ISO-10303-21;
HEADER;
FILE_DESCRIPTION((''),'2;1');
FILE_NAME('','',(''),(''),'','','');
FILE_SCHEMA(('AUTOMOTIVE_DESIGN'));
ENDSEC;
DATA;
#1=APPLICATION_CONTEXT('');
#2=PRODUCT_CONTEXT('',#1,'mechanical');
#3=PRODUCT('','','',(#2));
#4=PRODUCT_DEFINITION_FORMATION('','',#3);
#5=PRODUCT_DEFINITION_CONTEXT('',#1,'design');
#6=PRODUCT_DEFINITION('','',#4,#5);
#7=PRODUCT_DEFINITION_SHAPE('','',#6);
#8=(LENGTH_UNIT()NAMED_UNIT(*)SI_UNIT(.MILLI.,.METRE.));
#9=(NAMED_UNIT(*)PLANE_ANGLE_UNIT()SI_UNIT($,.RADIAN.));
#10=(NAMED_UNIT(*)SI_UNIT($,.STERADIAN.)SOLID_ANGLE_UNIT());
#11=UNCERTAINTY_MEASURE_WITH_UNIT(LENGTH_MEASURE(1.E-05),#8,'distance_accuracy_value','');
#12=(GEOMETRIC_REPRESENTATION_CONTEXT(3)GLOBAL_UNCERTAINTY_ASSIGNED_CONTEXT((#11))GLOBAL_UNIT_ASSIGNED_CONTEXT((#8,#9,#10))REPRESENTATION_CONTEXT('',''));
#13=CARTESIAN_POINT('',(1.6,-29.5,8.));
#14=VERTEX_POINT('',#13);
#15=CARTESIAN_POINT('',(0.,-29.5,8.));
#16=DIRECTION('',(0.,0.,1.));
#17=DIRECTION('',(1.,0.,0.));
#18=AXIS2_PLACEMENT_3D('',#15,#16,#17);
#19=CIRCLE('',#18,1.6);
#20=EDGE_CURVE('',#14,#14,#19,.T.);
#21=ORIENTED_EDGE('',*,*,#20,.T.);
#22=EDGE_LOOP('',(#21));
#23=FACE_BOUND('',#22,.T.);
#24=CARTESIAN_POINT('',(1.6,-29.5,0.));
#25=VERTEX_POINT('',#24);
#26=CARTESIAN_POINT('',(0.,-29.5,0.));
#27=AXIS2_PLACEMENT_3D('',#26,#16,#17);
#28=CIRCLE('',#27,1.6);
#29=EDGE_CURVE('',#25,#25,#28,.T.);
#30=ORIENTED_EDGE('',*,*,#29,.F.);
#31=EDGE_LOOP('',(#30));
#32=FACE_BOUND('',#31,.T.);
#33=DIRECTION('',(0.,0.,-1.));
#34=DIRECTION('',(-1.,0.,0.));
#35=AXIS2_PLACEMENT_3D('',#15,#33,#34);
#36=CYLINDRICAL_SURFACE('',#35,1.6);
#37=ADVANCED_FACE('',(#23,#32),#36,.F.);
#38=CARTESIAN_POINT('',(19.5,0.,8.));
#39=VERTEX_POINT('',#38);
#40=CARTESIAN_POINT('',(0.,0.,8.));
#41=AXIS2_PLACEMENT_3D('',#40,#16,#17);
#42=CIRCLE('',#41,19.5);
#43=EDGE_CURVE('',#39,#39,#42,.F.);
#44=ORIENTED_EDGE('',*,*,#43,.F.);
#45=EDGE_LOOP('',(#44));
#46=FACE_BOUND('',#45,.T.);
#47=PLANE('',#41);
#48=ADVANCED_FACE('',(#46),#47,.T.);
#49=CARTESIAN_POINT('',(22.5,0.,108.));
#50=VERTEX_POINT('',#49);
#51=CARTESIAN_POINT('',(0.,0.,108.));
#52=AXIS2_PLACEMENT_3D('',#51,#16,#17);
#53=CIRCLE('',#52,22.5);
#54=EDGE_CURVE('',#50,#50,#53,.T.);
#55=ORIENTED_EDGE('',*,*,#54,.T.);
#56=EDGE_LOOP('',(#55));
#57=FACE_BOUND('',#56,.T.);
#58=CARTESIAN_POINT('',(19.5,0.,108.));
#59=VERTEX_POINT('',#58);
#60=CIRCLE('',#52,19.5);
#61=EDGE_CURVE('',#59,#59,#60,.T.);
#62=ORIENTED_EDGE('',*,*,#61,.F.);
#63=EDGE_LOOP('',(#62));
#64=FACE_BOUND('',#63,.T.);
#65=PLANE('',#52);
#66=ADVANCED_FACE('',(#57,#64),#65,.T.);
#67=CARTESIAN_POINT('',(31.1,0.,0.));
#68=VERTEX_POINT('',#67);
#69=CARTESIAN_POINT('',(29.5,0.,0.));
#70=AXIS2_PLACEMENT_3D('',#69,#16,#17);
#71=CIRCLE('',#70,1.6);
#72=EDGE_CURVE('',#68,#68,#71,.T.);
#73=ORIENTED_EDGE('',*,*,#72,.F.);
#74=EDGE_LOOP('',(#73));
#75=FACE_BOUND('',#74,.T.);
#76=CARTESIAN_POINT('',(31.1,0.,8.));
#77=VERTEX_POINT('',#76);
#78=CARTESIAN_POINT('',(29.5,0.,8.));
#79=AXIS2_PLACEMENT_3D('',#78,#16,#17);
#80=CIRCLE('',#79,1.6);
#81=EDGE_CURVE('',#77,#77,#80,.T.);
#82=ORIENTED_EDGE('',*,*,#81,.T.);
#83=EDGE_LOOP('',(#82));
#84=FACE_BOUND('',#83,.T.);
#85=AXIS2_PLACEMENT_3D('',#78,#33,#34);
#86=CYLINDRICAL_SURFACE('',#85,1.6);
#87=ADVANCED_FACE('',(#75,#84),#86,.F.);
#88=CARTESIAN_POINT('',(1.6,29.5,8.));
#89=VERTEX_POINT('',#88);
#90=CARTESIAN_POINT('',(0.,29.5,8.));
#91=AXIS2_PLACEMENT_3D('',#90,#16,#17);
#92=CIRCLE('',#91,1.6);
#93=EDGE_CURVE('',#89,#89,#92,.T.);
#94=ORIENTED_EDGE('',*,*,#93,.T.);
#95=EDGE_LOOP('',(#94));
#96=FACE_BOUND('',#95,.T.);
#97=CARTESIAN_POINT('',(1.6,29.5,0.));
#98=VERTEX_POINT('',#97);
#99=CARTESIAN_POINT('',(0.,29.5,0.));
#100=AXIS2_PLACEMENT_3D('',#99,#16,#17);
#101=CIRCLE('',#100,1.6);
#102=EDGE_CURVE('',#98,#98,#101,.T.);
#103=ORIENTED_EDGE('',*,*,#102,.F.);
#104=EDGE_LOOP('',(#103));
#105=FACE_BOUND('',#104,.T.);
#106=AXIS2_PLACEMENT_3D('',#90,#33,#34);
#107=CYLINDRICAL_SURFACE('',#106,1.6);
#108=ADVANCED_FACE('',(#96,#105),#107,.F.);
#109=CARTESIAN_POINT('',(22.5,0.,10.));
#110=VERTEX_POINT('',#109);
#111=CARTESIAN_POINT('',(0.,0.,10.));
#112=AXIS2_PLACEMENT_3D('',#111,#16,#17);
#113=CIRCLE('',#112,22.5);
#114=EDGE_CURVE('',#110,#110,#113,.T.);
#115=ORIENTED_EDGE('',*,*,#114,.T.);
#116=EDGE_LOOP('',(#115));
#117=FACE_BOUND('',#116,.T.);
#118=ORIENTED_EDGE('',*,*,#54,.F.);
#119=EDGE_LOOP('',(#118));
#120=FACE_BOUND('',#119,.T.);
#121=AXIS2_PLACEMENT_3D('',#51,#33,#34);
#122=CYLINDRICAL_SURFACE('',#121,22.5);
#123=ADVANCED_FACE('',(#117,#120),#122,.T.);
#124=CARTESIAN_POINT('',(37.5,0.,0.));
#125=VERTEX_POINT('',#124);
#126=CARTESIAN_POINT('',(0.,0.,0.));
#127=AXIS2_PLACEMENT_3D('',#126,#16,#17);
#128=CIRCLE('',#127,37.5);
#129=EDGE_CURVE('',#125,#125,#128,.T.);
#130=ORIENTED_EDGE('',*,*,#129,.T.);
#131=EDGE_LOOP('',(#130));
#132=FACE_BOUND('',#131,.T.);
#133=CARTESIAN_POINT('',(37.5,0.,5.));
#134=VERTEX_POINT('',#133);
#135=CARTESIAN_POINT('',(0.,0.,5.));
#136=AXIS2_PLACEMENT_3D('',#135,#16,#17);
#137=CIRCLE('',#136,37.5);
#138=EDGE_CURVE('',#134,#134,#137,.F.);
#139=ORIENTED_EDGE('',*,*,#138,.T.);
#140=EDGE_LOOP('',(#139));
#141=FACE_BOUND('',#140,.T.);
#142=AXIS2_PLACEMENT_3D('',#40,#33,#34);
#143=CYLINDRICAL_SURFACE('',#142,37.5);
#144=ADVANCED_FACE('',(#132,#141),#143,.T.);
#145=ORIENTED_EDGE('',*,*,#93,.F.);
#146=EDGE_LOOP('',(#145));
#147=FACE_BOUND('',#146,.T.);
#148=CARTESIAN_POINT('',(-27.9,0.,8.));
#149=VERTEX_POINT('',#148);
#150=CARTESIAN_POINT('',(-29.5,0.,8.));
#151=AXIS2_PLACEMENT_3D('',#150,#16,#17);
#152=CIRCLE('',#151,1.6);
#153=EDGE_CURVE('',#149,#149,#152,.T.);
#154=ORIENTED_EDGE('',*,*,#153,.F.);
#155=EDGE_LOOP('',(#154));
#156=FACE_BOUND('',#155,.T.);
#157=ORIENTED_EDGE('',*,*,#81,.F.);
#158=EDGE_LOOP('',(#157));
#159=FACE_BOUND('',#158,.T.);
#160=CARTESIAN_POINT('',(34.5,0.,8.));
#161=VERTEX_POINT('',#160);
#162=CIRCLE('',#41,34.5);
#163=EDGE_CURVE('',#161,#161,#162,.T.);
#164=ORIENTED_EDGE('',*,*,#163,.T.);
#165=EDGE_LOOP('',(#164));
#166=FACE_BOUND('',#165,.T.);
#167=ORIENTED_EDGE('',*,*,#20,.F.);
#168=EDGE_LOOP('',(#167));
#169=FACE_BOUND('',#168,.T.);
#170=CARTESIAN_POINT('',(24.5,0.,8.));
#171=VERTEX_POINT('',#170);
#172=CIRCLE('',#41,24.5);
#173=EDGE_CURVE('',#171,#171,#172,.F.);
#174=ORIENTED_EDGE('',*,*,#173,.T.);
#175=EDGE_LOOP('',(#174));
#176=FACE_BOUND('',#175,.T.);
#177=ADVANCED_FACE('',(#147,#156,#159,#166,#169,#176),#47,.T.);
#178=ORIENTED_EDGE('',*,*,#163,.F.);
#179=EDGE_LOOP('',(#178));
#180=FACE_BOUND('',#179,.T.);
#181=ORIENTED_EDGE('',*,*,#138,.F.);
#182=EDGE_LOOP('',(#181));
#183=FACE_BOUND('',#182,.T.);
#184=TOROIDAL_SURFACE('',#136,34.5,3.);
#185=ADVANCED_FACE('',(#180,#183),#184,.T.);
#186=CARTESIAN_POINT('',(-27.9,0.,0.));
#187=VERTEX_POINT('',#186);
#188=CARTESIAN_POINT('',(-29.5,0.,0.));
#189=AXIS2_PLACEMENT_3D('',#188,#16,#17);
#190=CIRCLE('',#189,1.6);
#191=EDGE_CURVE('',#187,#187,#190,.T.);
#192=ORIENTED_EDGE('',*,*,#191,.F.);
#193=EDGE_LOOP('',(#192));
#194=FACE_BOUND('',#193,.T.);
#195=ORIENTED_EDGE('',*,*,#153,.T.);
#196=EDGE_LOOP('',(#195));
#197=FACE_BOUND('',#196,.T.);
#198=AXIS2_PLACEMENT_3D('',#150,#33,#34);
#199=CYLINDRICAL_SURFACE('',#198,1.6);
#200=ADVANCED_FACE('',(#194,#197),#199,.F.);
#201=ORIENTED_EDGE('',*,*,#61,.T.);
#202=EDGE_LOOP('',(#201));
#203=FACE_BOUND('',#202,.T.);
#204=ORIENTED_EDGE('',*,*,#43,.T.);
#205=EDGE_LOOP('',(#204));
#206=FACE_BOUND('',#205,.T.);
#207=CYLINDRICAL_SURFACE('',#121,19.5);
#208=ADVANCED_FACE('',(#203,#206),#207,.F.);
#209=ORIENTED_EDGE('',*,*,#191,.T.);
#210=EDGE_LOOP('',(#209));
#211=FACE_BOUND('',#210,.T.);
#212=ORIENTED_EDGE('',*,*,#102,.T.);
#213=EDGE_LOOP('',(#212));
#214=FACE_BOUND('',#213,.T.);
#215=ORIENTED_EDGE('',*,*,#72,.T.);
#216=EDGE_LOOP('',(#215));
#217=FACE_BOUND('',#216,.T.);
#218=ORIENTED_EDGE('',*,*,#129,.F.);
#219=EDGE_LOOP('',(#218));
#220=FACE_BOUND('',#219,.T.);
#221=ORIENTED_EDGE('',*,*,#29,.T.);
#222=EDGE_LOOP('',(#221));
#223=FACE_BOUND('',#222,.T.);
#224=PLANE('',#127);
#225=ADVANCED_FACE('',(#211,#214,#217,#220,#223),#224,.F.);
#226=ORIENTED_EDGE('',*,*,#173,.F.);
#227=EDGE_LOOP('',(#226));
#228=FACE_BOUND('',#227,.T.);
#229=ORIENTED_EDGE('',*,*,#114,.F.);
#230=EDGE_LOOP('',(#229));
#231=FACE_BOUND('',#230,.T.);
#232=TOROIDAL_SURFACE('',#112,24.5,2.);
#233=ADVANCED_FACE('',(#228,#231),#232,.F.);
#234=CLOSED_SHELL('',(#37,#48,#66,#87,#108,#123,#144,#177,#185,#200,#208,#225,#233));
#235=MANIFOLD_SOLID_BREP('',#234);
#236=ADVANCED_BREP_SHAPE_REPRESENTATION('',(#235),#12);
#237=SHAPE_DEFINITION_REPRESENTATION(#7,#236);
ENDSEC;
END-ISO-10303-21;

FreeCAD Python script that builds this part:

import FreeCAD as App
import Part
import Sketcher

V = App.Vector
Q = App.Units.Quantity


def edges_at(feature, points):
    """Names of the edges that pass closest to the given points."""
    edges = feature.Shape.Edges
    near = lambda p: min(range(len(edges)), key=lambda i: edges[i].distToShape(Part.Vertex(*p))[0])
    return sorted({f"Edge{near(p) + 1}" for p in points})

doc = App.newDocument("Part")
body = doc.addObject("PartDesign::Body", "Body")

# Sketch on XY plane
sketch1 = body.newObject("Sketcher::SketchObject", "Sketch")
sketch1.AttachmentSupport = (doc.getObject("XY_Plane"), [""])
sketch1.MapMode = "FlatFace"
sketch1.addGeometry([
    Part.Circle(V(0, 0, 0), V(0, 0, 1), 37.5),  # 0
    Part.Circle(V(0, -29.5, 0), V(0, 0, 1), 1.6),  # 1
    Part.Circle(V(-29.5, 0, 0), V(0, 0, 1), 1.6),  # 2
    Part.Circle(V(29.5, 0, 0), V(0, 0, 1), 1.6),  # 3
    Part.Circle(V(0, 29.5, 0), V(0, 0, 1), 1.6),  # 4
], False)
sketch1.addConstraint([
    Sketcher.Constraint("Coincident", 0, 3, -1, 1),
    Sketcher.Constraint("Equal", 1, 2),
    Sketcher.Constraint("Equal", 2, 3),
    Sketcher.Constraint("Equal", 3, 4),
    Sketcher.Constraint("Symmetric", 2, 3, 3, 3, -1, 1),
    Sketcher.Constraint("Symmetric", 1, 3, 4, 3, -1, 1),
    Sketcher.Constraint("PointOnObject", 1, 3, -2),
    Sketcher.Constraint("PointOnObject", 2, 3, -1),
    Sketcher.Constraint("Diameter", 0, Q("75 mm")),
    Sketcher.Constraint("Diameter", 1, Q("3.2 mm")),
    Sketcher.Constraint("DistanceX", 2, 3, 3, 3, Q("59 mm")),
    Sketcher.Constraint("DistanceY", 1, 3, 4, 3, Q("59 mm")),
])
pad1 = body.newObject("PartDesign::Pad", "Pad")
pad1.Profile = sketch1
pad1.Length = 8
doc.recompute()

fillet = body.newObject("PartDesign::Fillet", "Fillet")
fillet.Base = (pad1, edges_at(pad1, [(-37.5, 0, 8)]))
fillet.Radius = 3

# Sketch on XY plane
sketch2 = body.newObject("Sketcher::SketchObject", "Sketch001")
sketch2.AttachmentSupport = (doc.getObject("XY_Plane"), [""])
sketch2.MapMode = "FlatFace"
sketch2.AttachmentOffset = App.Placement(V(0, 0, 8), App.Rotation())
sketch2.addGeometry([
    Part.Circle(V(0, 0, 0), V(0, 0, 1), 22.5),
    Part.Circle(V(0, 0, 0), V(0, 0, 1), 19.5),
], False)
sketch2.addConstraint([
    Sketcher.Constraint("Coincident", 0, 3, -1, 1),
    Sketcher.Constraint("Coincident", 1, 3, -1, 1),
    Sketcher.Constraint("Diameter", 0, Q("45 mm")),
    Sketcher.Constraint("Diameter", 1, Q("39 mm")),
])
pad2 = body.newObject("PartDesign::Pad", "Pad001")
pad2.Profile = sketch2
pad2.Length = 100
doc.recompute()

fillet2 = body.newObject("PartDesign::Fillet", "Fillet001")
fillet2.Base = (pad2, edges_at(pad2, [(-22.5, 0, 8)]))
fillet2.Radius = 2

doc.recompute()
